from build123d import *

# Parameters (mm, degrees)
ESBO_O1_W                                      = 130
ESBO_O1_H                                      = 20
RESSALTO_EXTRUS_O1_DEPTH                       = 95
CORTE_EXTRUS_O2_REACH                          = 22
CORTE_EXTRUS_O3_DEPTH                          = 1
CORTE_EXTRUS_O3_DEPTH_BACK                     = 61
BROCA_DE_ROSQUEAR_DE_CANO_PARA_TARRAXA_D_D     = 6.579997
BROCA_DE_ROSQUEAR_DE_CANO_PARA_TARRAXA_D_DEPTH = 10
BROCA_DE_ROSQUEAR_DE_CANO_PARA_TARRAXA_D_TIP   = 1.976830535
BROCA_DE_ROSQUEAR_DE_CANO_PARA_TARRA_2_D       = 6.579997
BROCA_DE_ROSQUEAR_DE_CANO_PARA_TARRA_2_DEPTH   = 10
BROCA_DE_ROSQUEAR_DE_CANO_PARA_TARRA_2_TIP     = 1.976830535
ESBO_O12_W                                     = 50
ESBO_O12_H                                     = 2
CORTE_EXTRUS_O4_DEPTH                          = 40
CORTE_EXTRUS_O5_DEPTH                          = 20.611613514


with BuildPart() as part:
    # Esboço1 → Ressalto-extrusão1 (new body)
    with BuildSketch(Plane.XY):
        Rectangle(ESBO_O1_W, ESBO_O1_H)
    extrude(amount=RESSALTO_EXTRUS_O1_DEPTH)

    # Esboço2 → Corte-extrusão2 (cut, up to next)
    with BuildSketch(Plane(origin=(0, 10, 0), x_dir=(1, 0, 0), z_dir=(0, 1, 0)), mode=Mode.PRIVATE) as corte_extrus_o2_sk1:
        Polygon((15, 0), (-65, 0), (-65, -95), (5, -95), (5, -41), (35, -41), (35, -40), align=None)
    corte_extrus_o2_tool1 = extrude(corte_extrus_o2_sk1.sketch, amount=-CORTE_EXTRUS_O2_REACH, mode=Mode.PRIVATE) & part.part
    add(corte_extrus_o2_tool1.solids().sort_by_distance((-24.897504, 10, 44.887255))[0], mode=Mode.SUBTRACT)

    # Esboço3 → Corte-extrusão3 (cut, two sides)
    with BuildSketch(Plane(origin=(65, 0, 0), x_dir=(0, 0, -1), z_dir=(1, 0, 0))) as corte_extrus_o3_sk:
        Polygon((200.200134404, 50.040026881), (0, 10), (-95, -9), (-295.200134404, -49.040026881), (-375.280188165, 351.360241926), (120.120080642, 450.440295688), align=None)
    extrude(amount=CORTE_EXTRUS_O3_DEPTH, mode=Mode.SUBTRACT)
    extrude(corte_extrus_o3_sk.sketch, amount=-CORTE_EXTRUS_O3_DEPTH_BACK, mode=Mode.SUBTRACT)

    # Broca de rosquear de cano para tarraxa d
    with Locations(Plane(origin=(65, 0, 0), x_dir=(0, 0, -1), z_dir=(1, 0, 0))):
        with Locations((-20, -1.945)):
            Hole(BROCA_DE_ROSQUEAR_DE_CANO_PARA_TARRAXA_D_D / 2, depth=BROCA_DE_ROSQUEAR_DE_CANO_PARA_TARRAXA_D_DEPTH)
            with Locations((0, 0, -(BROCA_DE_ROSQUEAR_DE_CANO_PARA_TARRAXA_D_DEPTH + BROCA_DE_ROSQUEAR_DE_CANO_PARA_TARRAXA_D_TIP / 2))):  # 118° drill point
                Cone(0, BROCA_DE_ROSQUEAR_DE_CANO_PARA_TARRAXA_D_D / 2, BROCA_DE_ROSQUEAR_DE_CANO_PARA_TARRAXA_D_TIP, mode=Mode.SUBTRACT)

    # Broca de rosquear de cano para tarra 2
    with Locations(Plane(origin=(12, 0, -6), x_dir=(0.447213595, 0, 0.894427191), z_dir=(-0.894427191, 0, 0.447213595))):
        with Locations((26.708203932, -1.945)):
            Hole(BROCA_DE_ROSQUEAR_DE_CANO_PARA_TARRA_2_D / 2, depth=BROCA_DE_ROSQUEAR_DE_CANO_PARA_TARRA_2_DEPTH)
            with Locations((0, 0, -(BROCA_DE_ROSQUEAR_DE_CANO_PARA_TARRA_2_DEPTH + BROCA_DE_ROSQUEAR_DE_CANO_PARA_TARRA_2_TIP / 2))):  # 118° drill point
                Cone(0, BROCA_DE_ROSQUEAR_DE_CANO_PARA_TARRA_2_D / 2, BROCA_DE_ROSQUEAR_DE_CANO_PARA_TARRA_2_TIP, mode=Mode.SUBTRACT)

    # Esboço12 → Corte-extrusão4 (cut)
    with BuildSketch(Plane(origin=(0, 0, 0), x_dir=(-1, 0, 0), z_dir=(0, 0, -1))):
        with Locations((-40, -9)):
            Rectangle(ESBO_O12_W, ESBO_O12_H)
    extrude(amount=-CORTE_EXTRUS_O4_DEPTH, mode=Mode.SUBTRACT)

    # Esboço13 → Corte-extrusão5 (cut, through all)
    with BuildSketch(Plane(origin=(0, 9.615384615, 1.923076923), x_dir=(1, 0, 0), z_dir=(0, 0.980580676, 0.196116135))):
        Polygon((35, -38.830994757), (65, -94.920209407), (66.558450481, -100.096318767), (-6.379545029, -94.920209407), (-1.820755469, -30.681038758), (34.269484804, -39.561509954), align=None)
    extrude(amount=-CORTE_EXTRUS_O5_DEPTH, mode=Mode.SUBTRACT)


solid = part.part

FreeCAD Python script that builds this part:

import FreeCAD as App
import Part
import Sketcher

V = App.Vector
Q = App.Units.Quantity


def add_polygon(sketch, points):
    """Adds a closed chain of lines whose ends are joined by coincident constraints."""
    first, n = sketch.GeometryCount, len(points)
    for a, b in zip(points, points[1:] + points[:1]):
        sketch.addGeometry(Part.LineSegment(App.Vector(*a, 0), App.Vector(*b, 0)), False)
    for i in range(n):
        sketch.addConstraint(Sketcher.Constraint("Coincident", first + i, 2, first + (i + 1) % n, 1))

doc = App.newDocument("Part")
body = doc.addObject("PartDesign::Body", "Body")

# Sketch on XY plane
sketch1 = body.newObject("Sketcher::SketchObject", "Sketch")
sketch1.AttachmentSupport = (doc.getObject("XY_Plane"), [""])
sketch1.MapMode = "FlatFace"
add_polygon(sketch1, [(-65, 10), (-65, -10), (65, -10), (65, 10)])  # lines 0-3
sketch1.addConstraint(Sketcher.Constraint("Vertical", 0))
sketch1.addConstraint(Sketcher.Constraint("Horizontal", 1))
sketch1.addConstraint(Sketcher.Constraint("Vertical", 2))
sketch1.addConstraint(Sketcher.Constraint("Horizontal", 3))
sketch1.addConstraint(Sketcher.Constraint("Symmetric", 0, 2, 2, 2, -1, 1))
sketch1.addConstraint(Sketcher.Constraint("DistanceX", 1, 1, 1, 2, Q("130 mm")))
sketch1.addConstraint(Sketcher.Constraint("DistanceY", 0, 2, 0, 1, Q("20 mm")))
pad1 = body.newObject("PartDesign::Pad", "Pad")
pad1.Profile = sketch1
pad1.Length = 95

# Sketch on XZ plane
sketch2 = body.newObject("Sketcher::SketchObject", "Sketch001")
sketch2.AttachmentSupport = (doc.getObject("XZ_Plane"), [""])
sketch2.MapMode = "FlatFace"
sketch2.AttachmentOffset = App.Placement(V(0, 0, -10), App.Rotation())
add_polygon(sketch2, [(15, 0), (-65, 0), (-65, 95), (5, 95), (5, 41), (35, 41), (35, 40)])  # lines 0-6
sketch2.addConstraint(Sketcher.Constraint("Horizontal", 0))
sketch2.addConstraint(Sketcher.Constraint("Vertical", 1))
sketch2.addConstraint(Sketcher.Constraint("Horizontal", 2))
sketch2.addConstraint(Sketcher.Constraint("Vertical", 3))
sketch2.addConstraint(Sketcher.Constraint("Horizontal", 4))
sketch2.addConstraint(Sketcher.Constraint("Vertical", 5))
sketch2.addConstraint(Sketcher.Constraint("PointOnObject", 0, 2, -1))
sketch2.addConstraint(Sketcher.Constraint("DistanceX", 0, 2, 0, 1, Q("80 mm")))
sketch2.addConstraint(Sketcher.Constraint("DistanceX", 2, 1, 2, 2, Q("70 mm")))
sketch2.addConstraint(Sketcher.Constraint("DistanceX", 4, 1, 4, 2, Q("30 mm")))
sketch2.addConstraint(Sketcher.Constraint("DistanceY", 1, 1, 1, 2, Q("95 mm")))
sketch2.addConstraint(Sketcher.Constraint("DistanceY", 3, 2, 3, 1, Q("54 mm")))
sketch2.addConstraint(Sketcher.Constraint("DistanceY", 5, 2, 5, 1, Q("1 mm")))
sketch2.addConstraint(Sketcher.Constraint("DistanceX", 0, 2, -1, 1, Q("65 mm")))
pocket1 = body.newObject("PartDesign::Pocket", "Pocket")
pocket1.Profile = sketch2
pocket1.Type = "UpToFirst"
pocket1.Reversed = True

# Sketch on YZ plane
sketch3 = body.newObject("Sketcher::SketchObject", "Sketch002")
sketch3.AttachmentSupport = (doc.getObject("YZ_Plane"), [""])
sketch3.MapMode = "FlatFace"
sketch3.AttachmentOffset = App.Placement(V(0, 0, 65), App.Rotation())
add_polygon(sketch3, [(-49, 295), (50, -200), (450, -120), (351, 375)])  # lines 0-3
sketch3.addConstraint(Sketcher.Constraint("Perpendicular", 0, 1))
sketch3.addConstraint(Sketcher.Constraint("Perpendicular", 1, 2))
sketch3.addConstraint(Sketcher.Constraint("Perpendicular", 2, 3))
sketch3.addConstraint(Sketcher.Constraint("DistanceY", 1, 2, -1, 1, Q("120.120081 mm")))
sketch3.addConstraint(Sketcher.Constraint("DistanceX", -1, 1, 2, 2, Q("351.360242 mm")))
sketch3.addConstraint(Sketcher.Constraint("DistanceY", -1, 1, 2, 2, Q("375.280188 mm")))
sketch3.addConstraint(Sketcher.Constraint("DistanceX", 0, 2, 1, 2, Q("400.400269 mm")))
sketch3.addConstraint(Sketcher.Constraint("Distance", 0, Q("505.211128 mm")))
pocket2 = body.newObject("PartDesign::Pocket", "Pocket001")
pocket2.Profile = sketch3
pocket2.Type = "ThroughAll"
pocket2.Midplane = True

# Sketch on YZ plane
sketch4 = body.newObject("Sketcher::SketchObject", "Sketch003")
sketch4.AttachmentSupport = (doc.getObject("YZ_Plane"), [""])
sketch4.MapMode = "FlatFace"
sketch4.AttachmentOffset = App.Placement(V(0, 0, 65), App.Rotation())
sketch4.addGeometry(Part.Circle(V(-1.9, 20, 0), V(0, 0, 1), 3.3), False)
sketch4.addConstraint(Sketcher.Constraint("DistanceY", -1, 1, 0, 3, Q("20 mm")))
sketch4.addConstraint(Sketcher.Constraint("Diameter", 0, Q("6.579997 mm")))
sketch4.addConstraint(Sketcher.Constraint("DistanceX", 0, 3, -1, 1, Q("1.945 mm")))
doc.recompute()
hole = body.newObject("PartDesign::Hole", "Hole")
hole.Profile = sketch4
hole.ThreadType = "None"
hole.Diameter = 6.579997
hole.DepthType = "Dimension"
hole.Depth = 10
hole.DrillPoint = "Angled"
hole.DrillPointAngle = 118

# Sketch on an angled plane
sketch5 = body.newObject("Sketcher::SketchObject", "Sketch004")
sketch5.Placement = App.Placement(V(12, 0, -6), App.Rotation(V(0.447213595, 0, 0.894427191), V(0, 1, 0), V(-0.894427191, 0, 0.447213595), "ZXY"))
sketch5.addGeometry(Part.Circle(V(26.7, -1.9, 0), V(0, 0, 1), 3.3), False)
sketch5.addConstraint(Sketcher.Constraint("Diameter", 0, Q("6.579997 mm")))
sketch5.addConstraint(Sketcher.Constraint("DistanceY", 0, 3, -1, 1, Q("1.945 mm")))
sketch5.addConstraint(Sketcher.Constraint("DistanceX", -1, 1, 0, 3, Q("26.708204 mm")))
doc.recompute()
hole2 = body.newObject("PartDesign::Hole", "Hole001")
hole2.Profile = sketch5
hole2.ThreadType = "None"
hole2.Diameter = 6.579997
hole2.DepthType = "Dimension"
hole2.Depth = 10
hole2.DrillPoint = "Angled"
hole2.DrillPointAngle = 118

# Sketch on XY plane
sketch6 = body.newObject("Sketcher::SketchObject", "Sketch005")
sketch6.AttachmentSupport = (doc.getObject("XY_Plane"), [""])
sketch6.MapMode = "FlatFace"
add_polygon(sketch6, [(65, -8), (65, -10), (15, -10), (15, -8)])  # lines 0-3
sketch6.addConstraint(Sketcher.Constraint("Vertical", 0))
sketch6.addConstraint(Sketcher.Constraint("Horizontal", 1))
sketch6.addConstraint(Sketcher.Constraint("Vertical", 2))
sketch6.addConstraint(Sketcher.Constraint("Horizontal", 3))
sketch6.addConstraint(Sketcher.Constraint("DistanceX", 1, 2, 1, 1, Q("50 mm")))
sketch6.addConstraint(Sketcher.Constraint("DistanceY", 0, 2, 0, 1, Q("2 mm")))
sketch6.addConstraint(Sketcher.Constraint("DistanceX", -1, 1, 0, 2, Q("65 mm")))
sketch6.addConstraint(Sketcher.Constraint("DistanceY", 0, 2, -1, 1, Q("10 mm")))
pocket3 = body.newObject("PartDesign::Pocket", "Pocket002")
pocket3.Profile = sketch6
pocket3.Length = 40
pocket3.Reversed = True

# Sketch on an angled plane
sketch7 = body.newObject("Sketcher::SketchObject", "Sketch006")
sketch7.Placement = App.Placement(V(0, 9.615385, 1.923077), App.Rotation(V(1, 0, 0), V(0, 0.196116135, -0.980580676), V(0, 0.980580676, 0.196116135), "ZXY"))
add_polygon(sketch7, [(65, -94.9), (35, -38.8), (34.3, -39.6), (-1.8, -30.7), (-6.4, -94.9), (66.6, -100.1)])  # lines 0-5
sketch7.addConstraint(Sketcher.Constraint("Perpendicular", 3, 4))
sketch7.addConstraint(Sketcher.Constraint("Horizontal", 3, 2, 5, 2))
sketch7.addConstraint(Sketcher.Constraint("Angle", 1, Q("-135 deg")))
sketch7.addConstraint(Sketcher.Constraint("DistanceX", -1, 1, 0, 2, Q("35 mm")))
sketch7.addConstraint(Sketcher.Constraint("DistanceX", -1, 1, 5, 2, Q("65 mm")))
sketch7.addConstraint(Sketcher.Constraint("DistanceY", 3, 2, 1, 2, Q("55.358699 mm")))
sketch7.addConstraint(Sketcher.Constraint("Distance", 4, Q("73.121428 mm")))
sketch7.addConstraint(Sketcher.Constraint("DistanceY", 1, 2, -1, 1, Q("39.56151 mm")))
sketch7.addConstraint(Sketcher.Constraint("DistanceY", 2, 2, -1, 1, Q("30.681039 mm")))
sketch7.addConstraint(Sketcher.Constraint("DistanceX", -1, 1, 4, 2, Q("66.55845 mm")))
sketch7.addConstraint(Sketcher.Constraint("DistanceY", 4, 2, -1, 1, Q("100.096319 mm")))
sketch7.addConstraint(Sketcher.Constraint("DistanceX", 2, 2, 1, 2, Q("36.09024 mm")))
pocket4 = body.newObject("PartDesign::Pocket", "Pocket003")
pocket4.Profile = sketch7
pocket4.Type = "ThroughAll"

doc.recompute()
